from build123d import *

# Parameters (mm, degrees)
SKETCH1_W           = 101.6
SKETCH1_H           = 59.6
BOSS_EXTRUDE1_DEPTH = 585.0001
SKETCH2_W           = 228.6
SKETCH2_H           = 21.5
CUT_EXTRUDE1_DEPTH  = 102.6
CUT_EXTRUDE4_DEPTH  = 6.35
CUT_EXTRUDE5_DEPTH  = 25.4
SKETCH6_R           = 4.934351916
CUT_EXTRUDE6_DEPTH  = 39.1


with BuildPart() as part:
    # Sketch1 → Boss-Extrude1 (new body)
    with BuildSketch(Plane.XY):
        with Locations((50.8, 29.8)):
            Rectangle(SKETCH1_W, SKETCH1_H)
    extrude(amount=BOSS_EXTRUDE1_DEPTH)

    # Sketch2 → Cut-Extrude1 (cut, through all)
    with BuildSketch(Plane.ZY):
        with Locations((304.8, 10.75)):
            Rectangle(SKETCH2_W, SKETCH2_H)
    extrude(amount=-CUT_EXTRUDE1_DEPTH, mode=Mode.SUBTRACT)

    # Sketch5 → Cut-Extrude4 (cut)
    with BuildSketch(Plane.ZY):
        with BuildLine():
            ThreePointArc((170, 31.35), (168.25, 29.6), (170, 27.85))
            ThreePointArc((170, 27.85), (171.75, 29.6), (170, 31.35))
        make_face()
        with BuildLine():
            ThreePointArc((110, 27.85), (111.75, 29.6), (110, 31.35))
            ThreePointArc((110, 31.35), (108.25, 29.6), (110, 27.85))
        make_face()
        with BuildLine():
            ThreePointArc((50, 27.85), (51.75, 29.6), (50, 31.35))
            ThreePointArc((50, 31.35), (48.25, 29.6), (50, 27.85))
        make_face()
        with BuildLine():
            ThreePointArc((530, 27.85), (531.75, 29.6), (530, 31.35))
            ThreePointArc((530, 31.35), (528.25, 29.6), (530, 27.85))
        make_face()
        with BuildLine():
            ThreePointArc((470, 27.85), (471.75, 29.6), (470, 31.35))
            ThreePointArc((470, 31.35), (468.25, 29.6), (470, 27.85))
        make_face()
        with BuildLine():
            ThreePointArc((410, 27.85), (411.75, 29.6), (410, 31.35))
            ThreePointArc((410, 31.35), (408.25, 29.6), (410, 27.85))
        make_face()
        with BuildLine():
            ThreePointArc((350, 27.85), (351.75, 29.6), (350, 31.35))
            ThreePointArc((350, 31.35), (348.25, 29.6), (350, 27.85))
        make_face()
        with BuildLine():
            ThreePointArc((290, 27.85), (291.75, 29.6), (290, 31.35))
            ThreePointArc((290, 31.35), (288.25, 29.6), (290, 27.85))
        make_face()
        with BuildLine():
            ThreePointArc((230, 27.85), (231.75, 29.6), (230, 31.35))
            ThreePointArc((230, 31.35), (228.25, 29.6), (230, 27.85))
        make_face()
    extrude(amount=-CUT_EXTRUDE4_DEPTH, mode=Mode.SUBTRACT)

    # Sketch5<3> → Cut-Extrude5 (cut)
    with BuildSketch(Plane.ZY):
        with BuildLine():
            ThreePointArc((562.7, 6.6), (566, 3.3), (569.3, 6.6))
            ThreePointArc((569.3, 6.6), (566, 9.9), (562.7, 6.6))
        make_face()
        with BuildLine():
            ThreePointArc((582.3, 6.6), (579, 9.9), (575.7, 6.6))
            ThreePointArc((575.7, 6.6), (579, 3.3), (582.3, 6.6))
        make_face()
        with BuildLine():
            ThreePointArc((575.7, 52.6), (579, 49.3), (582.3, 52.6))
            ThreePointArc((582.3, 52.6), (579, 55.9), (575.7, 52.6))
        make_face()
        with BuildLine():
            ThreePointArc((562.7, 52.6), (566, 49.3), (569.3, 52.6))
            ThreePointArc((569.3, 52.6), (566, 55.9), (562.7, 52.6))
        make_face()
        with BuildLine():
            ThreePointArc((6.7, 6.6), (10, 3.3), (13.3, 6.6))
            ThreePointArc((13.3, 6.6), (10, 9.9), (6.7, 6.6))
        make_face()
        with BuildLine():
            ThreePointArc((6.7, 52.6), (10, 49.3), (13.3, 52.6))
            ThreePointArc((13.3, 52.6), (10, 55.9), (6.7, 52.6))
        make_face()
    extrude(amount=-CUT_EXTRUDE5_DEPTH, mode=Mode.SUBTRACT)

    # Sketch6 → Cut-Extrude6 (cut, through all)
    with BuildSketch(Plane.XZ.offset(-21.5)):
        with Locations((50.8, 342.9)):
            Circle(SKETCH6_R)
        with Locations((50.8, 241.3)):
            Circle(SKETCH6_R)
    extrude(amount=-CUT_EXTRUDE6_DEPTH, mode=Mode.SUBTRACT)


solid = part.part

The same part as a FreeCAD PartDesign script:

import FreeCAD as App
import Part
import Sketcher

V = App.Vector

doc = App.newDocument("Part")
body = doc.addObject("PartDesign::Body", "Body")

sketch1 = body.newObject("Sketcher::SketchObject", "Sketch")
sketch1.AttachmentSupport = (doc.getObject("XY_Plane"), [""])
sketch1.MapMode = "FlatFace"
sketch1.addGeometry(Part.LineSegment(V(0, 59.6, 0), V(0, 0, 0)), False)
sketch1.addGeometry(Part.LineSegment(V(0, 0, 0), V(101.6, 0, 0)), False)
sketch1.addGeometry(Part.LineSegment(V(101.6, 0, 0), V(101.6, 59.6, 0)), False)
sketch1.addGeometry(Part.LineSegment(V(101.6, 59.6, 0), V(0, 59.6, 0)), False)
sketch1.addConstraint(Sketcher.Constraint("Coincident", 0, 2, 1, 1))
sketch1.addConstraint(Sketcher.Constraint("Coincident", 1, 2, 2, 1))
sketch1.addConstraint(Sketcher.Constraint("Coincident", 2, 2, 3, 1))
sketch1.addConstraint(Sketcher.Constraint("Coincident", 3, 2, 0, 1))
sketch1.addConstraint(Sketcher.Constraint("Vertical", 0))
sketch1.addConstraint(Sketcher.Constraint("Horizontal", 1))
sketch1.addConstraint(Sketcher.Constraint("Vertical", 2))
sketch1.addConstraint(Sketcher.Constraint("Horizontal", 3))
sketch1.addConstraint(Sketcher.Constraint("Coincident", 0, 2, -1, 1))
sketch1.addConstraint(Sketcher.Constraint("DistanceX", 1, 1, 1, 2, 101.6))
sketch1.addConstraint(Sketcher.Constraint("DistanceY", 0, 2, 0, 1, 59.6))
pad1 = body.newObject("PartDesign::Pad", "Pad")
pad1.Profile = sketch1
pad1.Length = 585.0001

sketch2 = body.newObject("Sketcher::SketchObject", "Sketch001")
sketch2.AttachmentSupport = (doc.getObject("YZ_Plane"), [""])
sketch2.MapMode = "FlatFace"
sketch2.addGeometry(Part.LineSegment(V(21.5, 190.5, 0), V(0, 190.5, 0)), False)
sketch2.addGeometry(Part.LineSegment(V(0, 190.5, 0), V(0, 419.1, 0)), False)
sketch2.addGeometry(Part.LineSegment(V(0, 419.1, 0), V(21.5, 419.1, 0)), False)
sketch2.addGeometry(Part.LineSegment(V(21.5, 419.1, 0), V(21.5, 190.5, 0)), False)
sketch2.addConstraint(Sketcher.Constraint("Coincident", 0, 2, 1, 1))
sketch2.addConstraint(Sketcher.Constraint("Coincident", 1, 2, 2, 1))
sketch2.addConstraint(Sketcher.Constraint("Coincident", 2, 2, 3, 1))
sketch2.addConstraint(Sketcher.Constraint("Coincident", 3, 2, 0, 1))
sketch2.addConstraint(Sketcher.Constraint("Horizontal", 0))
sketch2.addConstraint(Sketcher.Constraint("Vertical", 1))
sketch2.addConstraint(Sketcher.Constraint("Horizontal", 2))
sketch2.addConstraint(Sketcher.Constraint("Vertical", 3))
sketch2.addConstraint(Sketcher.Constraint("PointOnObject", 0, 2, -2))
sketch2.addConstraint(Sketcher.Constraint("DistanceX", 0, 2, 0, 1, 21.5))
sketch2.addConstraint(Sketcher.Constraint("DistanceY", 1, 1, 1, 2, 228.6))
sketch2.addConstraint(Sketcher.Constraint("DistanceY", -1, 1, 0, 2, 190.5))
pocket1 = body.newObject("PartDesign::Pocket", "Pocket")
pocket1.Profile = sketch2
pocket1.Type = "ThroughAll"
pocket1.Reversed = True

sketch3 = body.newObject("Sketcher::SketchObject", "Sketch002")
sketch3.AttachmentSupport = (doc.getObject("YZ_Plane"), [""])
sketch3.MapMode = "FlatFace"
sketch3.addGeometry(Part.Circle(V(29.6, 170, 0), V(0, 0, 1), 1.75), False)
sketch3.addGeometry(Part.Circle(V(29.6, 110, 0), V(0, 0, 1), 1.75), False)
sketch3.addGeometry(Part.Circle(V(29.6, 50, 0), V(0, 0, 1), 1.75), False)
sketch3.addGeometry(Part.Circle(V(29.6, 530, 0), V(0, 0, 1), 1.75), False)
sketch3.addGeometry(Part.Circle(V(29.6, 470, 0), V(0, 0, 1), 1.75), False)
sketch3.addGeometry(Part.Circle(V(29.6, 410, 0), V(0, 0, 1), 1.75), False)
sketch3.addGeometry(Part.Circle(V(29.6, 350, 0), V(0, 0, 1), 1.75), False)
sketch3.addGeometry(Part.Circle(V(29.6, 290, 0), V(0, 0, 1), 1.75), False)
sketch3.addGeometry(Part.Circle(V(29.6, 230, 0), V(0, 0, 1), 1.75), False)
sketch3.addConstraint(Sketcher.Constraint("Equal", 0, 1))
sketch3.addConstraint(Sketcher.Constraint("Equal", 1, 2))
sketch3.addConstraint(Sketcher.Constraint("Equal", 2, 3))
sketch3.addConstraint(Sketcher.Constraint("Equal", 3, 4))
sketch3.addConstraint(Sketcher.Constraint("Equal", 4, 5))
sketch3.addConstraint(Sketcher.Constraint("Equal", 5, 6))
sketch3.addConstraint(Sketcher.Constraint("Equal", 6, 7))
sketch3.addConstraint(Sketcher.Constraint("Equal", 7, 8))
sketch3.addConstraint(Sketcher.Constraint("Vertical", 0, 3, 1, 3))
sketch3.addConstraint(Sketcher.Constraint("Vertical", 1, 3, 2, 3))
sketch3.addConstraint(Sketcher.Constraint("Vertical", 2, 3, 3, 3))
sketch3.addConstraint(Sketcher.Constraint("Vertical", 3, 3, 4, 3))
sketch3.addConstraint(Sketcher.Constraint("Vertical", 4, 3, 5, 3))
sketch3.addConstraint(Sketcher.Constraint("Vertical", 5, 3, 6, 3))
sketch3.addConstraint(Sketcher.Constraint("Vertical", 6, 3, 7, 3))
sketch3.addConstraint(Sketcher.Constraint("Vertical", 7, 3, 8, 3))
sketch3.addConstraint(Sketcher.Constraint("Diameter", 0, 3.5))
sketch3.addConstraint(Sketcher.Constraint("DistanceY", -1, 1, 0, 3, 170.0))
sketch3.addConstraint(Sketcher.Constraint("DistanceY", -1, 1, 1, 3, 110.0))
sketch3.addConstraint(Sketcher.Constraint("DistanceY", -1, 1, 2, 3, 50.0))
sketch3.addConstraint(Sketcher.Constraint("DistanceY", -1, 1, 3, 3, 530.0))
sketch3.addConstraint(Sketcher.Constraint("DistanceY", -1, 1, 4, 3, 470.0))
sketch3.addConstraint(Sketcher.Constraint("DistanceY", -1, 1, 5, 3, 410.0))
sketch3.addConstraint(Sketcher.Constraint("DistanceY", -1, 1, 6, 3, 350.0))
sketch3.addConstraint(Sketcher.Constraint("DistanceY", -1, 1, 7, 3, 290.0))
sketch3.addConstraint(Sketcher.Constraint("DistanceY", -1, 1, 8, 3, 230.0))
sketch3.addConstraint(Sketcher.Constraint("DistanceX", -1, 1, 0, 3, 29.6))
pocket2 = body.newObject("PartDesign::Pocket", "Pocket001")
pocket2.Profile = sketch3
pocket2.Length = 6.35
pocket2.Reversed = True

sketch4 = body.newObject("Sketcher::SketchObject", "Sketch003")
sketch4.AttachmentSupport = (doc.getObject("YZ_Plane"), [""])
sketch4.MapMode = "FlatFace"
sketch4.addGeometry(Part.Circle(V(6.6, 566, 0), V(0, 0, 1), 3.3), False)
sketch4.addGeometry(Part.Circle(V(6.6, 579, 0), V(0, 0, 1), 3.3), False)
sketch4.addGeometry(Part.Circle(V(52.6, 579, 0), V(0, 0, 1), 3.3), False)
sketch4.addGeometry(Part.Circle(V(52.6, 566, 0), V(0, 0, 1), 3.3), False)
sketch4.addGeometry(Part.Circle(V(6.6, 10, 0), V(0, 0, 1), 3.3), False)
sketch4.addGeometry(Part.Circle(V(52.6, 10, 0), V(0, 0, 1), 3.3), False)
sketch4.addConstraint(Sketcher.Constraint("Equal", 0, 1))
sketch4.addConstraint(Sketcher.Constraint("Equal", 1, 2))
sketch4.addConstraint(Sketcher.Constraint("Equal", 2, 3))
sketch4.addConstraint(Sketcher.Constraint("Equal", 3, 4))
sketch4.addConstraint(Sketcher.Constraint("Equal", 4, 5))
sketch4.addConstraint(Sketcher.Constraint("Horizontal", 1, 3, 2, 3))
sketch4.addConstraint(Sketcher.Constraint("Horizontal", 0, 3, 3, 3))
sketch4.addConstraint(Sketcher.Constraint("Horizontal", 4, 3, 5, 3))
sketch4.addConstraint(Sketcher.Constraint("Vertical", 0, 3, 1, 3))
sketch4.addConstraint(Sketcher.Constraint("Vertical", 2, 3, 3, 3))
sketch4.addConstraint(Sketcher.Constraint("Vertical", 1, 3, 4, 3))
sketch4.addConstraint(Sketcher.Constraint("Vertical", 3, 3, 5, 3))
sketch4.addConstraint(Sketcher.Constraint("Diameter", 0, 6.6))
sketch4.addConstraint(Sketcher.Constraint("DistanceY", -1, 1, 0, 3, 566.0))
sketch4.addConstraint(Sketcher.Constraint("DistanceY", -1, 1, 1, 3, 579.0))
sketch4.addConstraint(Sketcher.Constraint("DistanceY", -1, 1, 4, 3, 10.0))
sketch4.addConstraint(Sketcher.Constraint("DistanceX", 1, 3, 2, 3, 46.0))
sketch4.addConstraint(Sketcher.Constraint("DistanceX", -1, 1, 0, 3, 6.6))
pocket3 = body.newObject("PartDesign::Pocket", "Pocket002")
pocket3.Profile = sketch4
pocket3.Length = 25.4
pocket3.Reversed = True

sketch5 = body.newObject("Sketcher::SketchObject", "Sketch004")
sketch5.AttachmentSupport = (doc.getObject("XZ_Plane"), [""])
sketch5.MapMode = "FlatFace"
sketch5.AttachmentOffset = App.Placement(V(0, 0, -21.5), App.Rotation())
sketch5.addGeometry(Part.Circle(V(50.8, 342.9, 0), V(0, 0, 1), 4.934352), False)
sketch5.addGeometry(Part.Circle(V(50.8, 241.3, 0), V(0, 0, 1), 4.934352), False)
sketch5.addConstraint(Sketcher.Constraint("Equal", 0, 1))
sketch5.addConstraint(Sketcher.Constraint("Vertical", 0, 3, 1, 3))
sketch5.addConstraint(Sketcher.Constraint("DistanceX", -1, 1, 0, 3, 50.8))
sketch5.addConstraint(Sketcher.Constraint("DistanceY", -1, 1, 0, 3, 342.9))
sketch5.addConstraint(Sketcher.Constraint("DistanceY", -1, 1, 1, 3, 241.3))
sketch5.addConstraint(Sketcher.Constraint("Diameter", 0, 9.868704))
pocket4 = body.newObject("PartDesign::Pocket", "Pocket003")
pocket4.Profile = sketch5
pocket4.Type = "ThroughAll"

doc.recompute()
